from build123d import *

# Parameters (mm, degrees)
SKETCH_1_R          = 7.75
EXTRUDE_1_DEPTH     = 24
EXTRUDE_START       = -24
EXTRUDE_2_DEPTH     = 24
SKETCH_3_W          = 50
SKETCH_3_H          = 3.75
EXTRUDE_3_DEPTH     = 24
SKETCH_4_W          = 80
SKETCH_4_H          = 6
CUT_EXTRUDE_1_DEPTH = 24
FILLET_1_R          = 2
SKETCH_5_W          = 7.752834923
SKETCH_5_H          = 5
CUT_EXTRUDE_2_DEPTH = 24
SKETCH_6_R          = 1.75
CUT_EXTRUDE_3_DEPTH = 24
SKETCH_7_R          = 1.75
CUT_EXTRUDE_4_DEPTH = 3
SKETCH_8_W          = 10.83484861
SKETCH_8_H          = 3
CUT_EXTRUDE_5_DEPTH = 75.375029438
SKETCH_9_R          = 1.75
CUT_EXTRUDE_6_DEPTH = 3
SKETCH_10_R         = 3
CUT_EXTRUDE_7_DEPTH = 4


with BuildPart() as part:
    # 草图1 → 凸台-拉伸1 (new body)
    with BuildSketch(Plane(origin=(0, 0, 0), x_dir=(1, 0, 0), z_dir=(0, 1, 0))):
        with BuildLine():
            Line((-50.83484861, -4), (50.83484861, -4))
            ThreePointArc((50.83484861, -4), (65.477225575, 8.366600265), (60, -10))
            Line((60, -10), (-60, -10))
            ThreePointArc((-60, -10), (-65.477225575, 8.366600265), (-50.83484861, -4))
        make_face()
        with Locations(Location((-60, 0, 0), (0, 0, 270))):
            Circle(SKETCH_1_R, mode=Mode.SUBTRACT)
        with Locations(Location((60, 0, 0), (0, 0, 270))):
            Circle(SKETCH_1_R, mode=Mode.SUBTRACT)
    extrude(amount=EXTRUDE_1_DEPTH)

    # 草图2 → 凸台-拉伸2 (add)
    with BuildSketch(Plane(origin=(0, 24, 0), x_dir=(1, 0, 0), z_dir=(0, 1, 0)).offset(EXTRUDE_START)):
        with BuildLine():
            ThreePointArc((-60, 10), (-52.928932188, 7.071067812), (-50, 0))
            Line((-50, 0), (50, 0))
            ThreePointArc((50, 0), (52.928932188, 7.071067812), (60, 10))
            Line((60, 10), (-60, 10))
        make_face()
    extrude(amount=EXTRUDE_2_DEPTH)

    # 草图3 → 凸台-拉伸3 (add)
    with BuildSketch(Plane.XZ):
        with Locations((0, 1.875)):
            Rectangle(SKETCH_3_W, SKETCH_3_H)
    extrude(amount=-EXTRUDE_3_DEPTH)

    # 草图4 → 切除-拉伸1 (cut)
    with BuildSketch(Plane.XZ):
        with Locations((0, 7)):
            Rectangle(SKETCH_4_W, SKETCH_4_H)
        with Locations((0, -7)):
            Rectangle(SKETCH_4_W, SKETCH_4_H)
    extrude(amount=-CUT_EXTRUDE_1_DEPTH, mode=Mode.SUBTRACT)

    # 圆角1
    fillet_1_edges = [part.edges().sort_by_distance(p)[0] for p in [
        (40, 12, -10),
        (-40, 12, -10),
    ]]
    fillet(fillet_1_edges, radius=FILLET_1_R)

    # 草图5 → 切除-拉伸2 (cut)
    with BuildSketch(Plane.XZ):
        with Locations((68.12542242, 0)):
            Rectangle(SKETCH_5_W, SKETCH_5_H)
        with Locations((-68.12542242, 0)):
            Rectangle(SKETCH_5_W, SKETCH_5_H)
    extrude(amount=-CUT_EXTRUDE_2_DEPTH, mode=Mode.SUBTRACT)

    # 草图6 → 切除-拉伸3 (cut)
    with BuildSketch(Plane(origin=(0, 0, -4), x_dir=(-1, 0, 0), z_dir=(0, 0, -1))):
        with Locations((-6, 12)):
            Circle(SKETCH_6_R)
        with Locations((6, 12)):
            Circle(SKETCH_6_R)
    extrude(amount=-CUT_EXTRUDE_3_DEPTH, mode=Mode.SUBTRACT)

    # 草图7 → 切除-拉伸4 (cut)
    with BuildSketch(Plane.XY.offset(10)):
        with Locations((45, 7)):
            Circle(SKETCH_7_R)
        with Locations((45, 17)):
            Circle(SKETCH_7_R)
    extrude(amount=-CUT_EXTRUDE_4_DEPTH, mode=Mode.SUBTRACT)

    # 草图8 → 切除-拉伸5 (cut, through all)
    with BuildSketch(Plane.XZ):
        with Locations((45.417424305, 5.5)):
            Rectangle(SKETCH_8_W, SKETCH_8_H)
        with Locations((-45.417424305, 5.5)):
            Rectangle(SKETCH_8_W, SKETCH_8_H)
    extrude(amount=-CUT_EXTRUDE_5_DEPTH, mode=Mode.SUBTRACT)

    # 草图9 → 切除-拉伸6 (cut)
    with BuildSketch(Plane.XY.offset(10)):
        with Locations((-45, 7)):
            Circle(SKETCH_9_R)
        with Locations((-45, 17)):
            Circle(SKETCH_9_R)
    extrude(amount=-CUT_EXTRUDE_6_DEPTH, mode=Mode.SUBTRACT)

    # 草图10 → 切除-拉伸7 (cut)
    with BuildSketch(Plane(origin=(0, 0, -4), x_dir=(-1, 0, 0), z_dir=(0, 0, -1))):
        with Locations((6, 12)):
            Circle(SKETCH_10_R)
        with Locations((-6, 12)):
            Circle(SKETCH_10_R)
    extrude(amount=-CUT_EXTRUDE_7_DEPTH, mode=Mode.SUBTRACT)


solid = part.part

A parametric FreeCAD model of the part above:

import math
import FreeCAD as App
import Part
import Sketcher
from FreeCAD import Vector


def edges_at(feature, points):
    """Names of the edges that pass closest to the given points."""
    edges = feature.Shape.Edges
    near = lambda p: min(range(len(edges)), key=lambda i: edges[i].distToShape(Part.Vertex(*p))[0])
    return sorted({f"Edge{near(p) + 1}" for p in points})

doc = App.newDocument("Part")
body = doc.addObject("PartDesign::Body", "Body")

sketch1 = body.newObject("Sketcher::SketchObject", "Sketch")
sketch1.AttachmentSupport = (doc.getObject("XZ_Plane"), [""])
sketch1.MapMode = "FlatFace"
sketch1.addGeometry([
    Part.LineSegment(Vector(50.834849, 4, 0), Vector(-50.834849, 4, 0)),
    Part.ArcOfCircle(Part.Circle(Vector(-60, 0, 0), Vector(0, 0, 1), 10), math.radians(90), math.radians(383.578178)),
    Part.LineSegment(Vector(-60, 10, 0), Vector(60, 10, 0)),
    Part.ArcOfCircle(Part.Circle(Vector(60, 0, 0), Vector(0, 0, 1), 10), math.radians(156.421822), math.radians(450)),
    Part.Circle(Vector(60, 0, 0), Vector(0, 0, 1), 7.75),
    Part.Circle(Vector(-60, 0, 0), Vector(0, 0, 1), 7.75),
], False)
sketch1.addConstraint([
    Sketcher.Constraint("Coincident", 0, 2, 1, 2),
    Sketcher.Constraint("Tangent", 1, 1, 2, 1),
    Sketcher.Constraint("Tangent", 2, 2, 3, 2),
    Sketcher.Constraint("Coincident", 3, 1, 0, 1),
    Sketcher.Constraint("Horizontal", 0),
    Sketcher.Constraint("Horizontal", 2),
    Sketcher.Constraint("Coincident", 4, 3, 3, 3),
    Sketcher.Constraint("Coincident", 5, 3, 1, 3),
    Sketcher.Constraint("Equal", 1, 3),
    Sketcher.Constraint("Equal", 4, 5),
    Sketcher.Constraint("Symmetric", 1, 3, 3, 3, -1, 1),
    Sketcher.Constraint("Radius", 1, 10.0),
    Sketcher.Constraint("Diameter", 4, 15.5),
    Sketcher.Constraint("DistanceX", 2, 1, 2, 2, 120.0),
    Sketcher.Constraint("DistanceY", -1, 1, 0, 2, 4.0),
])
pad1 = body.newObject("PartDesign::Pad", "Pad")
pad1.Profile = sketch1
pad1.Length = 24
pad1.Reversed = True

sketch2 = body.newObject("Sketcher::SketchObject", "Sketch001")
sketch2.AttachmentSupport = (doc.getObject("XZ_Plane"), [""])
sketch2.MapMode = "FlatFace"
sketch2.addGeometry([
    Part.ArcOfCircle(Part.Circle(Vector(-60, 0, 0), Vector(0, 0, 1), 10), math.radians(-90), math.radians(0)),
    Part.LineSegment(Vector(-50, 0, 0), Vector(50, 0, 0)),
    Part.ArcOfCircle(Part.Circle(Vector(60, 0, 0), Vector(0, 0, 1), 10), math.radians(180), math.radians(270)),
    Part.LineSegment(Vector(60, -10, 0), Vector(-60, -10, 0)),
], False)
sketch2.addConstraint([
    Sketcher.Constraint("Coincident", 0, 2, 1, 1),
    Sketcher.Constraint("Coincident", 1, 2, 2, 1),
    Sketcher.Constraint("Tangent", 2, 2, 3, 1),
    Sketcher.Constraint("Tangent", 3, 2, 0, 1),
    Sketcher.Constraint("Horizontal", 1),
    Sketcher.Constraint("Horizontal", 3),
    Sketcher.Constraint("Equal", 0, 2),
    Sketcher.Constraint("Symmetric", 0, 3, 2, 3, -1, 1),
    Sketcher.Constraint("PointOnObject", 0, 2, -1),
    Sketcher.Constraint("Radius", 0, 10.0),
    Sketcher.Constraint("DistanceX", 1, 1, 1, 2, 100.0),
])
pad2 = body.newObject("PartDesign::Pad", "Pad001")
pad2.Profile = sketch2
pad2.Length = 24
pad2.Reversed = True

sketch3 = body.newObject("Sketcher::SketchObject", "Sketch002")
sketch3.AttachmentSupport = (doc.getObject("XZ_Plane"), [""])
sketch3.MapMode = "FlatFace"
sketch3.addGeometry([
    Part.LineSegment(Vector(-25, 3.75, 0), Vector(-25, 0, 0)),
    Part.LineSegment(Vector(-25, 0, 0), Vector(25, 0, 0)),
    Part.LineSegment(Vector(25, 0, 0), Vector(25, 3.75, 0)),
    Part.LineSegment(Vector(25, 3.75, 0), Vector(-25, 3.75, 0)),
], False)
sketch3.addConstraint([
    Sketcher.Constraint("Coincident", 0, 2, 1, 1),
    Sketcher.Constraint("Coincident", 1, 2, 2, 1),
    Sketcher.Constraint("Coincident", 2, 2, 3, 1),
    Sketcher.Constraint("Coincident", 3, 2, 0, 1),
    Sketcher.Constraint("Vertical", 0),
    Sketcher.Constraint("Horizontal", 1),
    Sketcher.Constraint("Vertical", 2),
    Sketcher.Constraint("Horizontal", 3),
    Sketcher.Constraint("Symmetric", 0, 2, 1, 2, -1, 1),
    Sketcher.Constraint("DistanceX", 1, 1, 1, 2, 50.0),
    Sketcher.Constraint("DistanceY", 0, 2, 0, 1, 3.75),
])
pad3 = body.newObject("PartDesign::Pad", "Pad002")
pad3.Profile = sketch3
pad3.Length = 24
pad3.Reversed = True

sketch4 = body.newObject("Sketcher::SketchObject", "Sketch003")
sketch4.AttachmentSupport = (doc.getObject("XZ_Plane"), [""])
sketch4.MapMode = "FlatFace"
sketch4.addGeometry([
    Part.LineSegment(Vector(-40, 10, 0), Vector(-40, 4, 0)),
    Part.LineSegment(Vector(-40, 4, 0), Vector(40, 4, 0)),
    Part.LineSegment(Vector(40, 4, 0), Vector(40, 10, 0)),
    Part.LineSegment(Vector(40, 10, 0), Vector(-40, 10, 0)),
    Part.LineSegment(Vector(-40, -4, 0), Vector(-40, -10, 0)),
    Part.LineSegment(Vector(-40, -10, 0), Vector(40, -10, 0)),
    Part.LineSegment(Vector(40, -10, 0), Vector(40, -4, 0)),
    Part.LineSegment(Vector(40, -4, 0), Vector(-40, -4, 0)),
], False)
sketch4.addConstraint([
    Sketcher.Constraint("Coincident", 0, 2, 1, 1),
    Sketcher.Constraint("Coincident", 1, 2, 2, 1),
    Sketcher.Constraint("Coincident", 2, 2, 3, 1),
    Sketcher.Constraint("Coincident", 3, 2, 0, 1),
    Sketcher.Constraint("Coincident", 4, 2, 5, 1),
    Sketcher.Constraint("Coincident", 5, 2, 6, 1),
    Sketcher.Constraint("Coincident", 6, 2, 7, 1),
    Sketcher.Constraint("Coincident", 7, 2, 4, 1),
    Sketcher.Constraint("Vertical", 0),
    Sketcher.Constraint("Horizontal", 1),
    Sketcher.Constraint("Vertical", 2),
    Sketcher.Constraint("Horizontal", 3),
    Sketcher.Constraint("Vertical", 4),
    Sketcher.Constraint("Horizontal", 5),
    Sketcher.Constraint("Vertical", 6),
    Sketcher.Constraint("Horizontal", 7),
    Sketcher.Constraint("Symmetric", 2, 2, 4, 2, -1, 1),
    Sketcher.Constraint("Symmetric", 0, 2, 6, 2, -1, 1),
    Sketcher.Constraint("Vertical", 3, 2, 4, 2),
    Sketcher.Constraint("DistanceX", 1, 1, 1, 2, 80.0),
    Sketcher.Constraint("DistanceY", 0, 2, 0, 1, 6.0),
    Sketcher.Constraint("DistanceY", -1, 1, 0, 2, 4.0),
])
pocket1 = body.newObject("PartDesign::Pocket", "Pocket")
pocket1.Profile = sketch4
pocket1.Length = 24
doc.recompute()

fillet = body.newObject("PartDesign::Fillet", "Fillet")
fillet.Base = (pocket1, edges_at(pocket1, [(40, 12, -10), (-40, 12, -10)]))
fillet.Radius = 2

sketch5 = body.newObject("Sketcher::SketchObject", "Sketch004")
sketch5.AttachmentSupport = (doc.getObject("XZ_Plane"), [""])
sketch5.MapMode = "FlatFace"
sketch5.addGeometry([
    Part.LineSegment(Vector(64.249005, 2.5, 0), Vector(64.249005, -2.5, 0)),
    Part.LineSegment(Vector(64.249005, -2.5, 0), Vector(72.00184, -2.5, 0)),
    Part.LineSegment(Vector(72.00184, -2.5, 0), Vector(72.00184, 2.5, 0)),
    Part.LineSegment(Vector(72.00184, 2.5, 0), Vector(64.249005, 2.5, 0)),
    Part.LineSegment(Vector(-72.00184, 2.5, 0), Vector(-72.00184, -2.5, 0)),
    Part.LineSegment(Vector(-72.00184, -2.5, 0), Vector(-64.249005, -2.5, 0)),
    Part.LineSegment(Vector(-64.249005, -2.5, 0), Vector(-64.249005, 2.5, 0)),
    Part.LineSegment(Vector(-64.249005, 2.5, 0), Vector(-72.00184, 2.5, 0)),
], False)
sketch5.addConstraint([
    Sketcher.Constraint("Coincident", 0, 2, 1, 1),
    Sketcher.Constraint("Coincident", 1, 2, 2, 1),
    Sketcher.Constraint("Coincident", 2, 2, 3, 1),
    Sketcher.Constraint("Coincident", 3, 2, 0, 1),
    Sketcher.Constraint("Coincident", 4, 2, 5, 1),
    Sketcher.Constraint("Coincident", 5, 2, 6, 1),
    Sketcher.Constraint("Coincident", 6, 2, 7, 1),
    Sketcher.Constraint("Coincident", 7, 2, 4, 1),
    Sketcher.Constraint("Vertical", 0),
    Sketcher.Constraint("Horizontal", 1),
    Sketcher.Constraint("Vertical", 2),
    Sketcher.Constraint("Horizontal", 3),
    Sketcher.Constraint("Vertical", 4),
    Sketcher.Constraint("Horizontal", 5),
    Sketcher.Constraint("Vertical", 6),
    Sketcher.Constraint("Horizontal", 7),
    Sketcher.Constraint("Symmetric", 2, 2, 4, 2, -1, 1),
    Sketcher.Constraint("Symmetric", 0, 2, 6, 2, -1, 1),
    Sketcher.Constraint("Horizontal", 1, 2, 4, 2),
    Sketcher.Constraint("DistanceY", 0, 2, 0, 1, 5.0),
    Sketcher.Constraint("DistanceX", 1, 1, 1, 2, 7.752835),
    Sketcher.Constraint("DistanceX", -1, 1, 1, 2, 72.00184),
])
pocket2 = body.newObject("PartDesign::Pocket", "Pocket001")
pocket2.Profile = sketch5
pocket2.Length = 24

sketch6 = body.newObject("Sketcher::SketchObject", "Sketch005")
sketch6.AttachmentSupport = (doc.getObject("XY_Plane"), [""])
sketch6.MapMode = "FlatFace"
sketch6.AttachmentOffset = App.Placement(Vector(0, 0, -4), App.Rotation())
sketch6.addGeometry([
    Part.Circle(Vector(6, 12, 0), Vector(0, 0, 1), 1.75),
    Part.Circle(Vector(-6, 12, 0), Vector(0, 0, 1), 1.75),
], False)
sketch6.addConstraint([
    Sketcher.Constraint("Equal", 0, 1),
    Sketcher.Constraint("Symmetric", 0, 3, 1, 3, -2),
    Sketcher.Constraint("Diameter", 0, 3.5),
    Sketcher.Constraint("DistanceX", -1, 1, 0, 3, 6.0),
    Sketcher.Constraint("DistanceY", -1, 1, 0, 3, 12.0),
])
pocket3 = body.newObject("PartDesign::Pocket", "Pocket002")
pocket3.Profile = sketch6
pocket3.Length = 24
pocket3.Reversed = True

sketch7 = body.newObject("Sketcher::SketchObject", "Sketch006")
sketch7.AttachmentSupport = (doc.getObject("XY_Plane"), [""])
sketch7.MapMode = "FlatFace"
sketch7.AttachmentOffset = App.Placement(Vector(0, 0, 10), App.Rotation())
sketch7.addGeometry([
    Part.Circle(Vector(45, 7, 0), Vector(0, 0, 1), 1.75),
    Part.Circle(Vector(45, 17, 0), Vector(0, 0, 1), 1.75),
], False)
sketch7.addConstraint([
    Sketcher.Constraint("Equal", 0, 1),
    Sketcher.Constraint("Vertical", 0, 3, 1, 3),
    Sketcher.Constraint("Diameter", 0, 3.5),
    Sketcher.Constraint("DistanceX", -1, 1, 0, 3, 45.0),
    Sketcher.Constraint("DistanceY", -1, 1, 0, 3, 7.0),
    Sketcher.Constraint("DistanceY", -1, 1, 1, 3, 17.0),
])
pocket4 = body.newObject("PartDesign::Pocket", "Pocket003")
pocket4.Profile = sketch7
pocket4.Length = 3

sketch8 = body.newObject("Sketcher::SketchObject", "Sketch007")
sketch8.AttachmentSupport = (doc.getObject("XZ_Plane"), [""])
sketch8.MapMode = "FlatFace"
sketch8.addGeometry([
    Part.LineSegment(Vector(40, 7, 0), Vector(40, 4, 0)),
    Part.LineSegment(Vector(40, 4, 0), Vector(50.834849, 4, 0)),
    Part.LineSegment(Vector(50.834849, 4, 0), Vector(50.834849, 7, 0)),
    Part.LineSegment(Vector(50.834849, 7, 0), Vector(40, 7, 0)),
    Part.LineSegment(Vector(-50.834849, 7, 0), Vector(-50.834849, 4, 0)),
    Part.LineSegment(Vector(-50.834849, 4, 0), Vector(-40, 4, 0)),
    Part.LineSegment(Vector(-40, 4, 0), Vector(-40, 7, 0)),
    Part.LineSegment(Vector(-40, 7, 0), Vector(-50.834849, 7, 0)),
], False)
sketch8.addConstraint([
    Sketcher.Constraint("Coincident", 0, 2, 1, 1),
    Sketcher.Constraint("Coincident", 1, 2, 2, 1),
    Sketcher.Constraint("Coincident", 2, 2, 3, 1),
    Sketcher.Constraint("Coincident", 3, 2, 0, 1),
    Sketcher.Constraint("Coincident", 4, 2, 5, 1),
    Sketcher.Constraint("Coincident", 5, 2, 6, 1),
    Sketcher.Constraint("Coincident", 6, 2, 7, 1),
    Sketcher.Constraint("Coincident", 7, 2, 4, 1),
    Sketcher.Constraint("Vertical", 0),
    Sketcher.Constraint("Horizontal", 1),
    Sketcher.Constraint("Vertical", 2),
    Sketcher.Constraint("Horizontal", 3),
    Sketcher.Constraint("Vertical", 4),
    Sketcher.Constraint("Horizontal", 5),
    Sketcher.Constraint("Vertical", 6),
    Sketcher.Constraint("Horizontal", 7),
    Sketcher.Constraint("Symmetric", 1, 2, 4, 2, -2),
    Sketcher.Constraint("Symmetric", 3, 2, 6, 2, -2),
    Sketcher.Constraint("DistanceY", 0, 2, 0, 1, 3.0),
    Sketcher.Constraint("DistanceX", -1, 1, 0, 2, 40.0),
    Sketcher.Constraint("DistanceY", -1, 1, 0, 2, 4.0),
    Sketcher.Constraint("DistanceX", 1, 1, 1, 2, 10.834849),
])
pocket5 = body.newObject("PartDesign::Pocket", "Pocket004")
pocket5.Profile = sketch8
pocket5.Type = "ThroughAll"

sketch9 = body.newObject("Sketcher::SketchObject", "Sketch008")
sketch9.AttachmentSupport = (doc.getObject("XY_Plane"), [""])
sketch9.MapMode = "FlatFace"
sketch9.AttachmentOffset = App.Placement(Vector(0, 0, 10), App.Rotation())
sketch9.addGeometry([
    Part.Circle(Vector(-45, 7, 0), Vector(0, 0, 1), 1.75),
    Part.Circle(Vector(-45, 17, 0), Vector(0, 0, 1), 1.75),
], False)
sketch9.addConstraint([
    Sketcher.Constraint("Equal", 0, 1),
    Sketcher.Constraint("Vertical", 0, 3, 1, 3),
    Sketcher.Constraint("Diameter", 0, 3.5),
    Sketcher.Constraint("DistanceX", 0, 3, -1, 1, 45.0),
    Sketcher.Constraint("DistanceY", -1, 1, 0, 3, 7.0),
    Sketcher.Constraint("DistanceY", -1, 1, 1, 3, 17.0),
])
pocket6 = body.newObject("PartDesign::Pocket", "Pocket005")
pocket6.Profile = sketch9
pocket6.Length = 3

sketch10 = body.newObject("Sketcher::SketchObject", "Sketch009")
sketch10.AttachmentSupport = (doc.getObject("XY_Plane"), [""])
sketch10.MapMode = "FlatFace"
sketch10.AttachmentOffset = App.Placement(Vector(0, 0, -4), App.Rotation())
sketch10.addGeometry([
    Part.Circle(Vector(-6, 12, 0), Vector(0, 0, 1), 3),
    Part.Circle(Vector(6, 12, 0), Vector(0, 0, 1), 3),
], False)
sketch10.addConstraint([
    Sketcher.Constraint("Equal", 0, 1),
    Sketcher.Constraint("Symmetric", 0, 3, 1, 3, -2),
    Sketcher.Constraint("Diameter", 0, 6.0),
    Sketcher.Constraint("DistanceX", 0, 3, -1, 1, 6.0),
    Sketcher.Constraint("DistanceY", -1, 1, 0, 3, 12.0),
])
pocket7 = body.newObject("PartDesign::Pocket", "Pocket006")
pocket7.Profile = sketch10
pocket7.Length = 4
pocket7.Reversed = True

doc.recompute()
